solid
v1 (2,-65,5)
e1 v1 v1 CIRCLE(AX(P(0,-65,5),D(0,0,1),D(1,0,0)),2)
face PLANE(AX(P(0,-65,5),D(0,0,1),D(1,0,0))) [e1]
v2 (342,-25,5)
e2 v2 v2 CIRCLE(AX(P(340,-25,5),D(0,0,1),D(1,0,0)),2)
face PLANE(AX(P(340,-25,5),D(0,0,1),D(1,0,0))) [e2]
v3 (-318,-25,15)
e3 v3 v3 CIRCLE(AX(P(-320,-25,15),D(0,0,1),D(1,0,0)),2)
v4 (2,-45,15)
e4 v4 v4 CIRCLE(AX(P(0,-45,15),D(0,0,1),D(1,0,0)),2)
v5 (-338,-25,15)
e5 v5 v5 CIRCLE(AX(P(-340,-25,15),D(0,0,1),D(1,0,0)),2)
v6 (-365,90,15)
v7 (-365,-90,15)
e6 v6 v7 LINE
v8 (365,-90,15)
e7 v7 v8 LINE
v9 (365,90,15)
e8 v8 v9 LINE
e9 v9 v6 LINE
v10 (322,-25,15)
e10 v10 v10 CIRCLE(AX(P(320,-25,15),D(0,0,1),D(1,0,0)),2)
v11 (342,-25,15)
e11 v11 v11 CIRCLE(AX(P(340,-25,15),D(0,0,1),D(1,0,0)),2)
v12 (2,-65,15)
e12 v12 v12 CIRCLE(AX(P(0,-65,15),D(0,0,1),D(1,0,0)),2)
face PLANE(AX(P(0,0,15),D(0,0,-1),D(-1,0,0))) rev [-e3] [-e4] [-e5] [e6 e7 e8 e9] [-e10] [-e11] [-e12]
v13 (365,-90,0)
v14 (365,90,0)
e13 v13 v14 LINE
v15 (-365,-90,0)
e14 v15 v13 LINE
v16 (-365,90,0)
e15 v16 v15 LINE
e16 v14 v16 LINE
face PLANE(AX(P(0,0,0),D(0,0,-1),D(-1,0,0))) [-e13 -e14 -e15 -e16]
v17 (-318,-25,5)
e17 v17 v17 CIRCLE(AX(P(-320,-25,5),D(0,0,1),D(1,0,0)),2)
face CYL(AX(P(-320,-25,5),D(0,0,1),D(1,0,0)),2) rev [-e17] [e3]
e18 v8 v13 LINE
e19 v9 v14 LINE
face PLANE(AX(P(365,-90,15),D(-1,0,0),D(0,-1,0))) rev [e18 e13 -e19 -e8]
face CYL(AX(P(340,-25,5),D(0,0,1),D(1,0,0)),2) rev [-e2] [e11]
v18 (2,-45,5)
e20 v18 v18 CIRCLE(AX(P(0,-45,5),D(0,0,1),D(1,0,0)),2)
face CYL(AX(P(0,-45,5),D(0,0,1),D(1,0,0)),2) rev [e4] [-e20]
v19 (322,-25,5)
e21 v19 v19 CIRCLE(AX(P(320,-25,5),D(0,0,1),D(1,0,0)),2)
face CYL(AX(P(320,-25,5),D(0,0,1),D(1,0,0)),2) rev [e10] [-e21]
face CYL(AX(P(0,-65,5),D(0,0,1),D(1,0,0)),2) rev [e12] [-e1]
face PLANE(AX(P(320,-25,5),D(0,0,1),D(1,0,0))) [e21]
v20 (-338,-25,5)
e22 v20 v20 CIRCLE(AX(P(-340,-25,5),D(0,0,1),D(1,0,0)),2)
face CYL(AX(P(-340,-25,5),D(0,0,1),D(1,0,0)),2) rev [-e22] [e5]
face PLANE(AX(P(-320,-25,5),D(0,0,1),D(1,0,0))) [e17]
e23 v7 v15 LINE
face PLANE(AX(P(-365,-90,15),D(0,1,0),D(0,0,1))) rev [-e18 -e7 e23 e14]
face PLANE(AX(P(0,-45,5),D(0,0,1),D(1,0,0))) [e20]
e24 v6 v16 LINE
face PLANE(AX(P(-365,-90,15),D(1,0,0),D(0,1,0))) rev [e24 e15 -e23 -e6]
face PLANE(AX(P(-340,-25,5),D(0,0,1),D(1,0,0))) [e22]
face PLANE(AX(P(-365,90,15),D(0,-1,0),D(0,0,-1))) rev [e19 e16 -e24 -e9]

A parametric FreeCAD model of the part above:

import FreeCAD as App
import Part
import Sketcher

V = App.Vector

doc = App.newDocument("Part")
body = doc.addObject("PartDesign::Body", "Body")

sketch1 = body.newObject("Sketcher::SketchObject", "Sketch")
sketch1.AttachmentSupport = (doc.getObject("XY_Plane"), [""])
sketch1.MapMode = "FlatFace"
sketch1.addGeometry(Part.LineSegment(V(-365, 90, 0), V(-365, -90, 0)), False)
sketch1.addGeometry(Part.LineSegment(V(-365, -90, 0), V(365, -90, 0)), False)
sketch1.addGeometry(Part.LineSegment(V(365, -90, 0), V(365, 90, 0)), False)
sketch1.addGeometry(Part.LineSegment(V(365, 90, 0), V(-365, 90, 0)), False)
sketch1.addConstraint(Sketcher.Constraint("Coincident", 0, 2, 1, 1))
sketch1.addConstraint(Sketcher.Constraint("Coincident", 1, 2, 2, 1))
sketch1.addConstraint(Sketcher.Constraint("Coincident", 2, 2, 3, 1))
sketch1.addConstraint(Sketcher.Constraint("Coincident", 3, 2, 0, 1))
sketch1.addConstraint(Sketcher.Constraint("Vertical", 0))
sketch1.addConstraint(Sketcher.Constraint("Horizontal", 1))
sketch1.addConstraint(Sketcher.Constraint("Vertical", 2))
sketch1.addConstraint(Sketcher.Constraint("Horizontal", 3))
sketch1.addConstraint(Sketcher.Constraint("Symmetric", 0, 2, 2, 2, -1, 1))
sketch1.addConstraint(Sketcher.Constraint("DistanceX", 1, 1, 1, 2, 730.0))
sketch1.addConstraint(Sketcher.Constraint("DistanceY", 0, 2, 0, 1, 180.0))
pad1 = body.newObject("PartDesign::Pad", "Pad")
pad1.Profile = sketch1
pad1.Length = 15

sketch2 = body.newObject("Sketcher::SketchObject", "Sketch001")
sketch2.AttachmentSupport = (doc.getObject("XY_Plane"), [""])
sketch2.MapMode = "FlatFace"
sketch2.AttachmentOffset = App.Placement(V(0, 0, 15), App.Rotation())
sketch2.addGeometry(Part.Circle(V(-340, -25, 0), V(0, 0, 1), 2), False)
sketch2.addGeometry(Part.Circle(V(0, -65, 0), V(0, 0, 1), 2), False)
sketch2.addGeometry(Part.Circle(V(0, -45, 0), V(0, 0, 1), 2), False)
sketch2.addGeometry(Part.Circle(V(-320, -25, 0), V(0, 0, 1), 2), False)
sketch2.addGeometry(Part.Circle(V(340, -25, 0), V(0, 0, 1), 2), False)
sketch2.addGeometry(Part.Circle(V(320, -25, 0), V(0, 0, 1), 2), False)
sketch2.addConstraint(Sketcher.Constraint("Equal", 0, 1))
sketch2.addConstraint(Sketcher.Constraint("Equal", 1, 2))
sketch2.addConstraint(Sketcher.Constraint("Equal", 2, 3))
sketch2.addConstraint(Sketcher.Constraint("Equal", 3, 4))
sketch2.addConstraint(Sketcher.Constraint("Equal", 4, 5))
sketch2.addConstraint(Sketcher.Constraint("Symmetric", 0, 3, 4, 3, -2))
sketch2.addConstraint(Sketcher.Constraint("Symmetric", 3, 3, 5, 3, -2))
sketch2.addConstraint(Sketcher.Constraint("PointOnObject", 1, 3, -2))
sketch2.addConstraint(Sketcher.Constraint("PointOnObject", 2, 3, -2))
sketch2.addConstraint(Sketcher.Constraint("Horizontal", 0, 3, 3, 3))
sketch2.addConstraint(Sketcher.Constraint("Diameter", 0, 4.0))
sketch2.addConstraint(Sketcher.Constraint("DistanceX", 0, 3, -1, 1, 340.0))
sketch2.addConstraint(Sketcher.Constraint("DistanceY", 0, 3, -1, 1, 25.0))
sketch2.addConstraint(Sketcher.Constraint("DistanceY", 1, 3, -1, 1, 65.0))
sketch2.addConstraint(Sketcher.Constraint("DistanceY", 2, 3, -1, 1, 45.0))
sketch2.addConstraint(Sketcher.Constraint("DistanceX", 3, 3, -1, 1, 320.0))
pocket1 = body.newObject("PartDesign::Pocket", "Pocket")
pocket1.Profile = sketch2
pocket1.Length = 10

doc.recompute()
